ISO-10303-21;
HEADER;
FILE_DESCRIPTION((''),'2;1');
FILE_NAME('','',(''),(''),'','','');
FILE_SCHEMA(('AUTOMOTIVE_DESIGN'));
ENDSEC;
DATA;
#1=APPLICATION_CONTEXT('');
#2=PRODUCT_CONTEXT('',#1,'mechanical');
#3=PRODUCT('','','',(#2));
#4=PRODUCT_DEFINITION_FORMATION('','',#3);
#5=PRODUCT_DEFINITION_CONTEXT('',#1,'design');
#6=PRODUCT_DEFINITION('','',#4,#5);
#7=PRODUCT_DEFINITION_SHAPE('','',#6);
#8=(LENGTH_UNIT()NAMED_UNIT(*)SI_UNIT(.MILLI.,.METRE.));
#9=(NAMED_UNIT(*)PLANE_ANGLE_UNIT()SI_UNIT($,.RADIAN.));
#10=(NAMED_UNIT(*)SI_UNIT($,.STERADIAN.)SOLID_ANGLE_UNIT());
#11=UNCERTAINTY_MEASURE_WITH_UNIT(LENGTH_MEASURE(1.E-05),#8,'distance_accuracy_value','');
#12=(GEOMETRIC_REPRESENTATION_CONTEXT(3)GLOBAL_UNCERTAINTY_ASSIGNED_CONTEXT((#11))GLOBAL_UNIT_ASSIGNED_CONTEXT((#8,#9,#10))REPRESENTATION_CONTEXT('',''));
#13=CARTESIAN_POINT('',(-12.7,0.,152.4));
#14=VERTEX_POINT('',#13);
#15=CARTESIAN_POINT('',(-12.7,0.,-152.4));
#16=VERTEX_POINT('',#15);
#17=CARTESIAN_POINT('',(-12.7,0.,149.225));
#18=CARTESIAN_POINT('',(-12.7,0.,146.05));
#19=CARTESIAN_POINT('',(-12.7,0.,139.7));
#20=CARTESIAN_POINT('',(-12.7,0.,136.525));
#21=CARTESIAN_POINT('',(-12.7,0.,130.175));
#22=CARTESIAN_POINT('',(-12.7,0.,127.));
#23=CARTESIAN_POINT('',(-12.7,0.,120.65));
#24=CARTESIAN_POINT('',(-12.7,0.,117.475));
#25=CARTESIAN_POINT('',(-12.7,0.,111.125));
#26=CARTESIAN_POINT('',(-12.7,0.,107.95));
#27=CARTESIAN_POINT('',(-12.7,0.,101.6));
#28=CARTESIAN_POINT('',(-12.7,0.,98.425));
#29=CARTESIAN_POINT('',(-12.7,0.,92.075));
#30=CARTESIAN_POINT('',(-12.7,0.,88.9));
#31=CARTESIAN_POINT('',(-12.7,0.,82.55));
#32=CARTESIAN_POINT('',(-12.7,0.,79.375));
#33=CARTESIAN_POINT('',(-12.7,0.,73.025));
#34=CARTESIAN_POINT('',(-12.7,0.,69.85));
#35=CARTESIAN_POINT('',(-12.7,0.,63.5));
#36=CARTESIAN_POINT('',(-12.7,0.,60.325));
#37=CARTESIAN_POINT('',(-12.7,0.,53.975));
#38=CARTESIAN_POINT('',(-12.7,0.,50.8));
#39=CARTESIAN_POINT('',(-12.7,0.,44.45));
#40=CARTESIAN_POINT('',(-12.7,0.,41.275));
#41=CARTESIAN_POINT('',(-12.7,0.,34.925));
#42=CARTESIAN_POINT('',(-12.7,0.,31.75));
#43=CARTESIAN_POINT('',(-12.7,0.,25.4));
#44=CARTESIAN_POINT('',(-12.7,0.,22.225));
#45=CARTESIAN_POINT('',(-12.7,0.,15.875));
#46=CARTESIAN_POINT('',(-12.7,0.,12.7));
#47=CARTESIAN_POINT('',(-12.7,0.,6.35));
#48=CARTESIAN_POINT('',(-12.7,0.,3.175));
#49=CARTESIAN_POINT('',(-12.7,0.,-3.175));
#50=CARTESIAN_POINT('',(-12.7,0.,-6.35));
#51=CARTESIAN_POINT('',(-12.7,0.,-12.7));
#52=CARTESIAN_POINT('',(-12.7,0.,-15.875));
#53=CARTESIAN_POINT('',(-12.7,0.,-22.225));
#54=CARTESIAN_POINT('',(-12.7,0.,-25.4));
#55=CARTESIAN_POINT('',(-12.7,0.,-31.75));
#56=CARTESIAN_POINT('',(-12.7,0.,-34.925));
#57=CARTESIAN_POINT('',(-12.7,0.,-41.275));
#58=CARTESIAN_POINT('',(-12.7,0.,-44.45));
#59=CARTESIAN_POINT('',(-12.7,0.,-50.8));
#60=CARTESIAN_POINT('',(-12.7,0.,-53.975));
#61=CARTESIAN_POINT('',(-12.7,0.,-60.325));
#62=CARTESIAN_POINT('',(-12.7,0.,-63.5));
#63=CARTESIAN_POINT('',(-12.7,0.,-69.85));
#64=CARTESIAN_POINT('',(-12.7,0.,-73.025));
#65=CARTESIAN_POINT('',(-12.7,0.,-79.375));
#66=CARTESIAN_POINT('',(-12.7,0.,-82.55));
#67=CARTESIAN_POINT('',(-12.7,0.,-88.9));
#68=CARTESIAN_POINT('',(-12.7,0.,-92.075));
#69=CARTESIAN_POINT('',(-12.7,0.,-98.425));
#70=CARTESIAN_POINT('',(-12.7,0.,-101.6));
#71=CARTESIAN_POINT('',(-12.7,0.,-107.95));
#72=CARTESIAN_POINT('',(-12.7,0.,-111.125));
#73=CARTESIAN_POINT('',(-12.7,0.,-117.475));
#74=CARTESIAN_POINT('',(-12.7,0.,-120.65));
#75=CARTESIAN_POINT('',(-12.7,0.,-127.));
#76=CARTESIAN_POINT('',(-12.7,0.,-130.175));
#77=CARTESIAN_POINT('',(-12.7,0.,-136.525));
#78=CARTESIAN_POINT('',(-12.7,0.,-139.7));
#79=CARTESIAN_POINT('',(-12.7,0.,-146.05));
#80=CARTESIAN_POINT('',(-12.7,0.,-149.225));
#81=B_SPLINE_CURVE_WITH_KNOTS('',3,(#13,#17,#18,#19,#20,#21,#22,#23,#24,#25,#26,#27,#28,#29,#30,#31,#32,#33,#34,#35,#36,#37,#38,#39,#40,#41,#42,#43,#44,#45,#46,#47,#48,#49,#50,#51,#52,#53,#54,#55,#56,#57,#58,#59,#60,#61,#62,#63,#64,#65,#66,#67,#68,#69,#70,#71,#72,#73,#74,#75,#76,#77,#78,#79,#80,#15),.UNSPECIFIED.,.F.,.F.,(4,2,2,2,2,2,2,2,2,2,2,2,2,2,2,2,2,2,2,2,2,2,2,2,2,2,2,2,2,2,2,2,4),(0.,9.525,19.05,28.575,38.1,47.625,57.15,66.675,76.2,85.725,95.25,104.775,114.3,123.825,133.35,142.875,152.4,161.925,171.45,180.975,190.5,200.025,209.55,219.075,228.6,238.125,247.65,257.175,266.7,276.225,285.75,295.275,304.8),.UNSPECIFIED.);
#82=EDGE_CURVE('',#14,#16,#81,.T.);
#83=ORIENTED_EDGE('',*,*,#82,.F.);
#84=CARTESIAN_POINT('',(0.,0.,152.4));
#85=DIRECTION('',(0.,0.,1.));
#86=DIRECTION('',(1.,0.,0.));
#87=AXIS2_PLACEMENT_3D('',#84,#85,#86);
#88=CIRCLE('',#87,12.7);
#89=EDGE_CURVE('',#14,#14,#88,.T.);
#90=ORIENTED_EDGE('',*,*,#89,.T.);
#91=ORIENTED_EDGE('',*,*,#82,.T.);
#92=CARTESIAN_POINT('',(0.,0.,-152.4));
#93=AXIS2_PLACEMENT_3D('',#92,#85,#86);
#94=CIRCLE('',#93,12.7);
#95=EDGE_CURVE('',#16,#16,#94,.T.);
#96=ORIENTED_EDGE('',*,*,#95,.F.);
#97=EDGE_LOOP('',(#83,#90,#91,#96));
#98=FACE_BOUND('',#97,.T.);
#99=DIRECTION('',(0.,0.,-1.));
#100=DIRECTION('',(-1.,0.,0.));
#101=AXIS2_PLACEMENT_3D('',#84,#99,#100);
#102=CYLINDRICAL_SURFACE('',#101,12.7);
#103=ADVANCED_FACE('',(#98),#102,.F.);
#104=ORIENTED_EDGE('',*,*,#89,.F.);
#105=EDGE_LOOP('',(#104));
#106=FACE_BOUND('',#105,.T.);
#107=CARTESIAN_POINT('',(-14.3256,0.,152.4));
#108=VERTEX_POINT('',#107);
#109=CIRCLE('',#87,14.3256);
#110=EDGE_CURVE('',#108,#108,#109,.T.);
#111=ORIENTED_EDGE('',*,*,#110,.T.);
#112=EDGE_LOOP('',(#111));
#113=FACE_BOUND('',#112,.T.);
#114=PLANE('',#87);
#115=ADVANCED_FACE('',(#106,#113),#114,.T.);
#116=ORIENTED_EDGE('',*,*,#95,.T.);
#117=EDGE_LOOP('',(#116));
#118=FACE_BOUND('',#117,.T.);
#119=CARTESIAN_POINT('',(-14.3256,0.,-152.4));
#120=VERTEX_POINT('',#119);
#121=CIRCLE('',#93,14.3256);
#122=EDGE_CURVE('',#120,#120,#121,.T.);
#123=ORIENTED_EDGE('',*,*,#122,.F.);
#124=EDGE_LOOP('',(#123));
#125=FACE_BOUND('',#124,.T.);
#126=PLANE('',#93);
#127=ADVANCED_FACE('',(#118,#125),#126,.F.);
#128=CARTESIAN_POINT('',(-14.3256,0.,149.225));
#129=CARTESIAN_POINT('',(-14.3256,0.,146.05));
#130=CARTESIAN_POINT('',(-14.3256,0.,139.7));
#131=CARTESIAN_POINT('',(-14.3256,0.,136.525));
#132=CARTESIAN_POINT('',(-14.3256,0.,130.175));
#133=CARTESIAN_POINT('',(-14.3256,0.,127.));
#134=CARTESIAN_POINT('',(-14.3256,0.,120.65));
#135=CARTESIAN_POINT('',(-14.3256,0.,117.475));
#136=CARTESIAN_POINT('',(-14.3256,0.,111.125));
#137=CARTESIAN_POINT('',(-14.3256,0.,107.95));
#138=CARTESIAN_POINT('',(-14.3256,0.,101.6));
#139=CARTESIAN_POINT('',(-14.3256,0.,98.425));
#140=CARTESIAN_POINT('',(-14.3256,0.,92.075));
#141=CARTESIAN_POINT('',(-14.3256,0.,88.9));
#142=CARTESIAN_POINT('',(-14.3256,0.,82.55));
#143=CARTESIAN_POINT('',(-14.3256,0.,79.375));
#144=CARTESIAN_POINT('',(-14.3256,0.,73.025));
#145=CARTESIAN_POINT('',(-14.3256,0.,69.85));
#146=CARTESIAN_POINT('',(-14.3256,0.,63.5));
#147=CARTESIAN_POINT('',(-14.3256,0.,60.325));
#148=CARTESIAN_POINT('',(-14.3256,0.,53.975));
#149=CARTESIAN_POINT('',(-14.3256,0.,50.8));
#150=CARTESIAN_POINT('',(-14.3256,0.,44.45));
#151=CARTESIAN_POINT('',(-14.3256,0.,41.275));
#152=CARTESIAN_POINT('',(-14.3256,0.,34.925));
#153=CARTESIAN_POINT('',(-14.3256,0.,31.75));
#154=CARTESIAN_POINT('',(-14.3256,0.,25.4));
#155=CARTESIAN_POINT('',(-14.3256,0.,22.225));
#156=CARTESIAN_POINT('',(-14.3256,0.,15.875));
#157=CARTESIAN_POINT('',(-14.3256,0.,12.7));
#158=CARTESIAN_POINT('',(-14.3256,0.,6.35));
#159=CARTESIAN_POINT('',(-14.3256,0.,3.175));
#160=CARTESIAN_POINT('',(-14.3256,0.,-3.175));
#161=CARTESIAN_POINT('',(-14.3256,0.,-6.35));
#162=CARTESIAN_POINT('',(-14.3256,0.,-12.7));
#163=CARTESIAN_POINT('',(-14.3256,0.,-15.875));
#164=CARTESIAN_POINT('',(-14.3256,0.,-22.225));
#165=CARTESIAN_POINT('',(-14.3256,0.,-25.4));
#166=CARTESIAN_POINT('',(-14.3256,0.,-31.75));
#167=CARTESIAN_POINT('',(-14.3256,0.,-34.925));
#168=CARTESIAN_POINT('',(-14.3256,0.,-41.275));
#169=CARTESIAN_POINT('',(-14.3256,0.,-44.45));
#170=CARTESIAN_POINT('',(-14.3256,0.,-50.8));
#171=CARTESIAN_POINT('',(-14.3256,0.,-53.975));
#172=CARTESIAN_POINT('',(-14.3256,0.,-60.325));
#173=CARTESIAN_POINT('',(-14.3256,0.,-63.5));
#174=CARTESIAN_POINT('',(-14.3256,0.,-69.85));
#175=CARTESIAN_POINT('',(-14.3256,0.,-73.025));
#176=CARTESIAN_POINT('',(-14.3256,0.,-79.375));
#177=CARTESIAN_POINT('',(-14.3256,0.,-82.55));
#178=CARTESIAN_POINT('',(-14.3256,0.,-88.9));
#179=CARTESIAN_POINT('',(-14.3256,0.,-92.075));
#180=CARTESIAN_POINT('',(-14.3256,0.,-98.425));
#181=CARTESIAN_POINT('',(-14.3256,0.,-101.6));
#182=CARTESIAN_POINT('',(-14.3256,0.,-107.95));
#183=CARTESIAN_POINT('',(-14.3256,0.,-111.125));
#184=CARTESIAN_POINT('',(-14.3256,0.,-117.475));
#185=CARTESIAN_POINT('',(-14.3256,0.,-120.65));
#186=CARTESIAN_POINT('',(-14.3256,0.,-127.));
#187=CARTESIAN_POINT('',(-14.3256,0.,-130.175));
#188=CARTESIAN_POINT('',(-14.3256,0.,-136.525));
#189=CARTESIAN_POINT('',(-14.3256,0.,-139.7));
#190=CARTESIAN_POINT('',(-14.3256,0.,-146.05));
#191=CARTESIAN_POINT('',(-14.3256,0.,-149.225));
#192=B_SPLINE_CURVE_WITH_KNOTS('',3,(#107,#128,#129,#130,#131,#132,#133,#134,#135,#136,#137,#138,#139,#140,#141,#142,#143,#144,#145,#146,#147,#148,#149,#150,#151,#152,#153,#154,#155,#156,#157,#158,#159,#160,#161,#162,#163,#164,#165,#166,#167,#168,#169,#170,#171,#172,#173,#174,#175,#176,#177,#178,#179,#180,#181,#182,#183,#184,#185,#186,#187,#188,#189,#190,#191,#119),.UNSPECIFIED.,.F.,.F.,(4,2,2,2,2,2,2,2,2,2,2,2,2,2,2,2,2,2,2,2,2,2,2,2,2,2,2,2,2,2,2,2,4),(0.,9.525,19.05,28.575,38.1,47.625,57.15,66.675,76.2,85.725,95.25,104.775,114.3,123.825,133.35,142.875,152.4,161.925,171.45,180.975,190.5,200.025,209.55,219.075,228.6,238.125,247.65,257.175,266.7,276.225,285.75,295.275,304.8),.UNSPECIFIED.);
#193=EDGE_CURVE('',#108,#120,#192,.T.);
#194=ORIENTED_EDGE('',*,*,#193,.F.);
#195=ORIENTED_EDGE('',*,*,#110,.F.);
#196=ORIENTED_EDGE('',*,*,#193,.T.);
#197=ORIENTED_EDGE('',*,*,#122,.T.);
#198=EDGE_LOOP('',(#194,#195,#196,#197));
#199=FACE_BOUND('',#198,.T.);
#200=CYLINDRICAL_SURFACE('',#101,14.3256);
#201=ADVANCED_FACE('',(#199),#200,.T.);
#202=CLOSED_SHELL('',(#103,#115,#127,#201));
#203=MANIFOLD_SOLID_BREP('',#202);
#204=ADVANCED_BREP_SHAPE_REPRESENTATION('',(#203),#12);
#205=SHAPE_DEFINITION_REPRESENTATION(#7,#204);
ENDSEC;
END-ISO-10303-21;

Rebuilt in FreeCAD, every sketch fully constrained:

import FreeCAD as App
import Part
import Sketcher

V = App.Vector
Q = App.Units.Quantity

doc = App.newDocument("Part")
body = doc.addObject("PartDesign::Body", "Body")

# Sketch on XY plane
sketch1 = body.newObject("Sketcher::SketchObject", "Sketch")
sketch1.AttachmentSupport = (doc.getObject("XY_Plane"), [""])
sketch1.MapMode = "FlatFace"
sketch1.addGeometry([
    Part.Circle(V(0, 0, 0), V(0, 0, 1), 14.3256),
    Part.Circle(V(0, 0, 0), V(0, 0, 1), 12.7),
], False)
sketch1.addConstraint([
    Sketcher.Constraint("Coincident", 0, 3, -1, 1),
    Sketcher.Constraint("Coincident", 1, 3, -1, 1),
    Sketcher.Constraint("Diameter", 1, Q("1 in")),
    Sketcher.Constraint("Diameter", 0, Q("1.128 in")),
])
pad1 = body.newObject("PartDesign::Pad", "Pad")
pad1.Profile = sketch1
pad1.Type = "TwoLengths"
pad1.Length = Q("6 in")
pad1.Length2 = Q("6 in")

doc.recompute()
